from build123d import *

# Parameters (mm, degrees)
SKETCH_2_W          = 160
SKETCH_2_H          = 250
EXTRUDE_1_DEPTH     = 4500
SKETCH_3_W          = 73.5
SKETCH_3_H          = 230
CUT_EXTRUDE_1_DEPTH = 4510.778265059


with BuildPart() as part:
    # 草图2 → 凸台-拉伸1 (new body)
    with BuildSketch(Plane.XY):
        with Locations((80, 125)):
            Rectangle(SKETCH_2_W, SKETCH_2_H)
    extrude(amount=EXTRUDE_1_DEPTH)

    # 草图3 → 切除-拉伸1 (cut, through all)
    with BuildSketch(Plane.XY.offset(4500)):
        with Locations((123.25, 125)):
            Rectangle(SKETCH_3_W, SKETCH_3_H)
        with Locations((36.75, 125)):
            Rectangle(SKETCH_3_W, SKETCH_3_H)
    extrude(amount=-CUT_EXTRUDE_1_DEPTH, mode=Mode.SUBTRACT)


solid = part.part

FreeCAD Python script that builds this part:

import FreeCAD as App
import Part
import Sketcher
Q = App.Units.Quantity


def add_polygon(sketch, points):
    """Adds a closed chain of lines whose ends are joined by coincident constraints."""
    first, n = sketch.GeometryCount, len(points)
    for a, b in zip(points, points[1:] + points[:1]):
        sketch.addGeometry(Part.LineSegment(App.Vector(*a, 0), App.Vector(*b, 0)), False)
    for i in range(n):
        sketch.addConstraint(Sketcher.Constraint("Coincident", first + i, 2, first + (i + 1) % n, 1))

doc = App.newDocument("Part")
body = doc.addObject("PartDesign::Body", "Body")

sketch1 = body.newObject("Sketcher::SketchObject", "Sketch")
sketch1.AttachmentSupport = (doc.getObject("XY_Plane"), [""])
sketch1.MapMode = "FlatFace"
add_polygon(sketch1, [(0, 250), (0, 0), (160, 0), (160, 250)])
sketch1.addConstraint([
    Sketcher.Constraint("Vertical", 0),
    Sketcher.Constraint("Horizontal", 1),
    Sketcher.Constraint("Vertical", 2),
    Sketcher.Constraint("Horizontal", 3),
    Sketcher.Constraint("Coincident", 0, 2, -1, 1),
    Sketcher.Constraint("DistanceX", 1, 1, 1, 2, Q("160 mm")),
    Sketcher.Constraint("DistanceY", 0, 2, 0, 1, Q("250 mm")),
])
pad1 = body.newObject("PartDesign::Pad", "Pad")
pad1.Profile = sketch1
pad1.Length = 4500

sketch2 = body.newObject("Sketcher::SketchObject", "Sketch001")
sketch2.AttachmentSupport = (doc.getObject("XY_Plane"), [""])
sketch2.MapMode = "FlatFace"
sketch2.AttachmentOffset = App.Placement(App.Vector(0, 0, 4500), App.Rotation())
add_polygon(sketch2, [(86, 240), (86, 10), (160, 10), (160, 240)])
add_polygon(sketch2, [(0, 240), (0, 10), (74, 10), (74, 240)])
sketch2.addConstraint([
    Sketcher.Constraint("Vertical", 0),
    Sketcher.Constraint("Horizontal", 1),
    Sketcher.Constraint("Vertical", 2),
    Sketcher.Constraint("Horizontal", 3),
    Sketcher.Constraint("Vertical", 4),
    Sketcher.Constraint("Horizontal", 5),
    Sketcher.Constraint("Vertical", 6),
    Sketcher.Constraint("Horizontal", 7),
    Sketcher.Constraint("PointOnObject", 4, 2, -2),
    Sketcher.Constraint("Horizontal", 1, 2, 4, 2),
    Sketcher.Constraint("Horizontal", 3, 2, 6, 2),
    Sketcher.Constraint("Equal", 3, 5),
    Sketcher.Constraint("DistanceY", 0, 2, 0, 1, Q("230 mm")),
    Sketcher.Constraint("DistanceX", 1, 1, 1, 2, Q("73.5 mm")),
    Sketcher.Constraint("DistanceY", -1, 1, 0, 2, Q("10 mm")),
    Sketcher.Constraint("DistanceX", -1, 1, 1, 2, Q("160 mm")),
])
pocket1 = body.newObject("PartDesign::Pocket", "Pocket")
pocket1.Profile = sketch2
pocket1.Type = "ThroughAll"

doc.recompute()
